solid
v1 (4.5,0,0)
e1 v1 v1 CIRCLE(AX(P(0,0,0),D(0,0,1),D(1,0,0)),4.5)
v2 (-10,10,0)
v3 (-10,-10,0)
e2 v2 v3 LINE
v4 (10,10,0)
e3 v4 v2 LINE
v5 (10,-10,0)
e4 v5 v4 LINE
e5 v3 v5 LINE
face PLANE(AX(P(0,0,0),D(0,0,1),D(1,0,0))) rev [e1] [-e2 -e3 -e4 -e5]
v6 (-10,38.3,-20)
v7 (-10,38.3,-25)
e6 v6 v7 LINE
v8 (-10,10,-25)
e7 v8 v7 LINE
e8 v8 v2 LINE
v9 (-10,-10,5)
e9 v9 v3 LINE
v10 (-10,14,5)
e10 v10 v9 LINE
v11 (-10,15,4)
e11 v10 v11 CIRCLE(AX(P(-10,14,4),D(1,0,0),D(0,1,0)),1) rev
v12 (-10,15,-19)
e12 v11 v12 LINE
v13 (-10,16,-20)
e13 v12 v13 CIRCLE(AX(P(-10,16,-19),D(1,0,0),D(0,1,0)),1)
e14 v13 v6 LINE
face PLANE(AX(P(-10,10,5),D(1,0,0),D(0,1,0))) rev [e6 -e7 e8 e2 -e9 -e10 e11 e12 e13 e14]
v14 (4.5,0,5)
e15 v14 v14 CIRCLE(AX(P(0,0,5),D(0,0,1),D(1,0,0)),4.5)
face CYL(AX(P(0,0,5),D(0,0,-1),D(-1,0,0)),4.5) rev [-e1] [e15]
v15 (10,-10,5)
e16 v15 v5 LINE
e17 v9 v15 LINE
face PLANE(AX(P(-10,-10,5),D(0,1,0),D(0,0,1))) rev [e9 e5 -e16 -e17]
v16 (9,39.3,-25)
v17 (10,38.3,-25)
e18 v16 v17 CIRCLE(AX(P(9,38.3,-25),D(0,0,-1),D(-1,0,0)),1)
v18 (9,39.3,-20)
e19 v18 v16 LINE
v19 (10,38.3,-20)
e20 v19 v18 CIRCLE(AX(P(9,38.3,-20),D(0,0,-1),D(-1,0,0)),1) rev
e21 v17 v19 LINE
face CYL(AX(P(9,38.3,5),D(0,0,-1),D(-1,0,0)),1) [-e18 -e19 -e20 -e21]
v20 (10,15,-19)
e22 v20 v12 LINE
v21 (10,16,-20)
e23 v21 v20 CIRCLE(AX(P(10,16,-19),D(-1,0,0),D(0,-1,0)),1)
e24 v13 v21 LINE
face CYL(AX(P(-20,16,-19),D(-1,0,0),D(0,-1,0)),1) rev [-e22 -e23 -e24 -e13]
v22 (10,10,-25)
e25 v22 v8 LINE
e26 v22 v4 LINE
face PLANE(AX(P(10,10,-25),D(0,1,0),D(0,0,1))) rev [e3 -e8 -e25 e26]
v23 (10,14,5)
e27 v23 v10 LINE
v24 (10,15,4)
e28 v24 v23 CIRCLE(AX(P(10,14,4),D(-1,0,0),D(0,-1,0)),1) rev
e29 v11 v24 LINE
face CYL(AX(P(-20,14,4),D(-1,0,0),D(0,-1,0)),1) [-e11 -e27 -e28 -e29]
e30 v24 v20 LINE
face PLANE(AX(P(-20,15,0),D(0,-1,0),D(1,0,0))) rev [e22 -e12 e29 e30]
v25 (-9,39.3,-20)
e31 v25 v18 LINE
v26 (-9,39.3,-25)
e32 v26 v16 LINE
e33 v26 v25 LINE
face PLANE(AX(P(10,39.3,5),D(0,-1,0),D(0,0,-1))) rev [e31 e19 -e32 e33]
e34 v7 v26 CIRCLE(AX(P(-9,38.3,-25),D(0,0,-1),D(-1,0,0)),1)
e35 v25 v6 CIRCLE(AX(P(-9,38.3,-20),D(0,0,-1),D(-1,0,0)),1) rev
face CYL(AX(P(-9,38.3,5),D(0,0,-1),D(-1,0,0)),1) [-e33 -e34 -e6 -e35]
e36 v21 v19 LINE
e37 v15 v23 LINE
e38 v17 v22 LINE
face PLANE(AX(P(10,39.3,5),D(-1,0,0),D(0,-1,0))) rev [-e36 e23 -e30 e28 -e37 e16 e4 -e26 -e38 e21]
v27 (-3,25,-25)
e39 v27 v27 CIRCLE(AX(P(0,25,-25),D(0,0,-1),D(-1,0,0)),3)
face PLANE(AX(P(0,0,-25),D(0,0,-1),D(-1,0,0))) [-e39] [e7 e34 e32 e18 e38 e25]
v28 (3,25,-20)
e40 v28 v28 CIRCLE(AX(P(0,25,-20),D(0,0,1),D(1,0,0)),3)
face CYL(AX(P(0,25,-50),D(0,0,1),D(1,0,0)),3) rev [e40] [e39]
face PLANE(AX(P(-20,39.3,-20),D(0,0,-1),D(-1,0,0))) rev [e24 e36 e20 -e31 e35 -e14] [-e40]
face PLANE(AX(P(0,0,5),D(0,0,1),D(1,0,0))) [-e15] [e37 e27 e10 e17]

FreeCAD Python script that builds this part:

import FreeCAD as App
import Part
import Sketcher


def edges_at(feature, points):
    """Names of the edges that pass closest to the given points."""
    edges = feature.Shape.Edges
    near = lambda p: min(range(len(edges)), key=lambda i: edges[i].distToShape(Part.Vertex(*p))[0])
    return sorted({f"Edge{near(p) + 1}" for p in points})

doc = App.newDocument("Part")
params = doc.addObject("Spreadsheet::Sheet", "Params")
for row, (alias, value) in enumerate([
    ("sketch1_diameter", "9 mm"),
    ("sketch1_width", "20 mm"),
    ("sketch1_height", "49.3 mm"),
    ("pad1_length", "5 mm"),
    ("sketch2_width", "20 mm"),
    ("sketch2_height", "29.3 mm"),
    ("pad2_length", "25 mm"),
    ("sketch3_height", "25 mm"),
    ("sketch3_width", "24.3 mm"),
    ("pocket1_length", "30 mm"),
    ("sketch4_diameter", "5 mm"),
    ("sketch4_diameter2", "6 mm"),
    ("pocket2_length", "30 mm"),
    ("fillet_radius", "1 mm"),
], start=1):
    params.set(f"A{row}", alias)
    params.set(f"B{row}", "=" + value)
    params.setAlias(f"B{row}", alias)

body = doc.addObject("PartDesign::Body", "Body")

# Sketch on XY plane
sketch1 = body.newObject("Sketcher::SketchObject", "Sketch")
sketch1.AttachmentSupport = (doc.getObject("XY_Plane"), [""])
sketch1.MapMode = "FlatFace"
sketch1.addGeometry([
    Part.LineSegment(App.Vector(-10, -10, 0), App.Vector(10, -10, 0)),  # 0
    Part.LineSegment(App.Vector(10, -10, 0), App.Vector(10, 39.3, 0)),  # 1
    Part.LineSegment(App.Vector(10, 39.3, 0), App.Vector(-10, 39.3, 0)),  # 2
    Part.LineSegment(App.Vector(-10, 39.3, 0), App.Vector(-10, -10, 0)),  # 3
    Part.Circle(App.Vector(0, 0, 0), App.Vector(0, 0, 1), 4.5),  # 4
], False)
sketch1.addConstraint([
    Sketcher.Constraint("Coincident", 0, 2, 1, 1),
    Sketcher.Constraint("Coincident", 1, 2, 2, 1),
    Sketcher.Constraint("Coincident", 2, 2, 3, 1),
    Sketcher.Constraint("Coincident", 3, 2, 0, 1),
    Sketcher.Constraint("Horizontal", 0),
    Sketcher.Constraint("Vertical", 1),
    Sketcher.Constraint("Horizontal", 2),
    Sketcher.Constraint("Vertical", 3),
    Sketcher.Constraint("Coincident", 4, 3, -1, 1),
    Sketcher.Constraint("Diameter", 4, 9.0),
    Sketcher.Constraint("DistanceX", 0, 1, 0, 2, 20.0),
    Sketcher.Constraint("DistanceY", 1, 1, 1, 2, 49.3),
    Sketcher.Constraint("DistanceX", -1, 1, 0, 2, 10.0),
    Sketcher.Constraint("DistanceY", 0, 2, -1, 1, 10.0),
])
sketch1.setExpression("Constraints[9]", "Params.sketch1_diameter")
sketch1.setExpression("Constraints[10]", "Params.sketch1_width")
sketch1.setExpression("Constraints[11]", "Params.sketch1_height")
pad1 = body.newObject("PartDesign::Pad", "Pad")
pad1.Profile = sketch1
pad1.setExpression("Length", "Params.pad1_length")

# Sketch on XY plane
sketch2 = body.newObject("Sketcher::SketchObject", "Sketch001")
sketch2.AttachmentSupport = (doc.getObject("XY_Plane"), [""])
sketch2.MapMode = "FlatFace"
sketch2.addGeometry([
    Part.LineSegment(App.Vector(10, 39, 0), App.Vector(10, 10, 0)),
    Part.LineSegment(App.Vector(10, 10, 0), App.Vector(-10, 10, 0)),
    Part.LineSegment(App.Vector(-10, 10, 0), App.Vector(-10, 39, 0)),
    Part.LineSegment(App.Vector(-10, 39, 0), App.Vector(10, 39, 0)),
], False)
sketch2.addConstraint([
    Sketcher.Constraint("Coincident", 0, 2, 1, 1),
    Sketcher.Constraint("Coincident", 1, 2, 2, 1),
    Sketcher.Constraint("Coincident", 2, 2, 3, 1),
    Sketcher.Constraint("Coincident", 3, 2, 0, 1),
    Sketcher.Constraint("Vertical", 0),
    Sketcher.Constraint("Horizontal", 1),
    Sketcher.Constraint("Vertical", 2),
    Sketcher.Constraint("Horizontal", 3),
    Sketcher.Constraint("DistanceX", 1, 2, 1, 1, 20.0),
    Sketcher.Constraint("DistanceY", 0, 2, 0, 1, 29.3),
    Sketcher.Constraint("DistanceX", -1, 1, 0, 2, 10.0),
    Sketcher.Constraint("DistanceY", -1, 1, 0, 2, 10.0),
])
sketch2.setExpression("Constraints[8]", "Params.sketch2_width")
sketch2.setExpression("Constraints[9]", "Params.sketch2_height")
pad2 = body.newObject("PartDesign::Pad", "Pad001")
pad2.Profile = sketch2
pad2.setExpression("Length", "Params.pad2_length")
pad2.Reversed = True

# Sketch on YZ plane
sketch3 = body.newObject("Sketcher::SketchObject", "Sketch002")
sketch3.AttachmentSupport = (doc.getObject("YZ_Plane"), [""])
sketch3.MapMode = "FlatFace"
sketch3.AttachmentOffset = App.Placement(App.Vector(0, 0, 10), App.Rotation())
sketch3.addGeometry([
    Part.LineSegment(App.Vector(15, 5, 0), App.Vector(15, -20, 0)),
    Part.LineSegment(App.Vector(15, -20, 0), App.Vector(39, -20, 0)),
    Part.LineSegment(App.Vector(39, -20, 0), App.Vector(39, 5, 0)),
    Part.LineSegment(App.Vector(39, 5, 0), App.Vector(15, 5, 0)),
], False)
sketch3.addConstraint([
    Sketcher.Constraint("Coincident", 0, 2, 1, 1),
    Sketcher.Constraint("Coincident", 1, 2, 2, 1),
    Sketcher.Constraint("Coincident", 2, 2, 3, 1),
    Sketcher.Constraint("Coincident", 3, 2, 0, 1),
    Sketcher.Constraint("Vertical", 0),
    Sketcher.Constraint("Horizontal", 1),
    Sketcher.Constraint("Vertical", 2),
    Sketcher.Constraint("Horizontal", 3),
    Sketcher.Constraint("DistanceY", 0, 2, 0, 1, 25.0),
    Sketcher.Constraint("DistanceX", 1, 1, 1, 2, 24.3),
    Sketcher.Constraint("DistanceX", -1, 1, 0, 2, 15.0),
    Sketcher.Constraint("DistanceY", 0, 2, -1, 1, 20.0),
])
sketch3.setExpression("Constraints[8]", "Params.sketch3_height")
sketch3.setExpression("Constraints[9]", "Params.sketch3_width")
pocket1 = body.newObject("PartDesign::Pocket", "Pocket")
pocket1.Profile = sketch3
pocket1.setExpression("Length", "Params.pocket1_length")

# Sketch on XY plane
sketch4 = body.newObject("Sketcher::SketchObject", "Sketch003")
sketch4.AttachmentSupport = (doc.getObject("XY_Plane"), [""])
sketch4.MapMode = "FlatFace"
sketch4.AttachmentOffset = App.Placement(App.Vector(0, 0, -20), App.Rotation())
sketch4.addGeometry([
    Part.Circle(App.Vector(0, 45, 0), App.Vector(0, 0, 1), 2.5),
    Part.Circle(App.Vector(0, 25, 0), App.Vector(0, 0, 1), 3),
], False)
sketch4.addConstraint([
    Sketcher.Constraint("PointOnObject", 0, 3, -2),
    Sketcher.Constraint("PointOnObject", 1, 3, -2),
    Sketcher.Constraint("Diameter", 0, 5.0),
    Sketcher.Constraint("Diameter", 1, 6.0),
    Sketcher.Constraint("DistanceY", -1, 1, 0, 3, 45.0),
    Sketcher.Constraint("DistanceY", -1, 1, 1, 3, 25.0),
])
sketch4.setExpression("Constraints[2]", "Params.sketch4_diameter")
sketch4.setExpression("Constraints[3]", "Params.sketch4_diameter2")
pocket2 = body.newObject("PartDesign::Pocket", "Pocket001")
pocket2.Profile = sketch4
pocket2.setExpression("Length", "Params.pocket2_length")
doc.recompute()

fillet = body.newObject("PartDesign::Fillet", "Fillet")
fillet.Base = (pocket2, edges_at(pocket2, [
    (-10, 39.3, -22.5),
    (10, 39.3, -22.5),
    (0, 15, -20),
    (0, 15, 5),
]))
fillet.setExpression("Radius", "Params.fillet_radius")

doc.recompute()
